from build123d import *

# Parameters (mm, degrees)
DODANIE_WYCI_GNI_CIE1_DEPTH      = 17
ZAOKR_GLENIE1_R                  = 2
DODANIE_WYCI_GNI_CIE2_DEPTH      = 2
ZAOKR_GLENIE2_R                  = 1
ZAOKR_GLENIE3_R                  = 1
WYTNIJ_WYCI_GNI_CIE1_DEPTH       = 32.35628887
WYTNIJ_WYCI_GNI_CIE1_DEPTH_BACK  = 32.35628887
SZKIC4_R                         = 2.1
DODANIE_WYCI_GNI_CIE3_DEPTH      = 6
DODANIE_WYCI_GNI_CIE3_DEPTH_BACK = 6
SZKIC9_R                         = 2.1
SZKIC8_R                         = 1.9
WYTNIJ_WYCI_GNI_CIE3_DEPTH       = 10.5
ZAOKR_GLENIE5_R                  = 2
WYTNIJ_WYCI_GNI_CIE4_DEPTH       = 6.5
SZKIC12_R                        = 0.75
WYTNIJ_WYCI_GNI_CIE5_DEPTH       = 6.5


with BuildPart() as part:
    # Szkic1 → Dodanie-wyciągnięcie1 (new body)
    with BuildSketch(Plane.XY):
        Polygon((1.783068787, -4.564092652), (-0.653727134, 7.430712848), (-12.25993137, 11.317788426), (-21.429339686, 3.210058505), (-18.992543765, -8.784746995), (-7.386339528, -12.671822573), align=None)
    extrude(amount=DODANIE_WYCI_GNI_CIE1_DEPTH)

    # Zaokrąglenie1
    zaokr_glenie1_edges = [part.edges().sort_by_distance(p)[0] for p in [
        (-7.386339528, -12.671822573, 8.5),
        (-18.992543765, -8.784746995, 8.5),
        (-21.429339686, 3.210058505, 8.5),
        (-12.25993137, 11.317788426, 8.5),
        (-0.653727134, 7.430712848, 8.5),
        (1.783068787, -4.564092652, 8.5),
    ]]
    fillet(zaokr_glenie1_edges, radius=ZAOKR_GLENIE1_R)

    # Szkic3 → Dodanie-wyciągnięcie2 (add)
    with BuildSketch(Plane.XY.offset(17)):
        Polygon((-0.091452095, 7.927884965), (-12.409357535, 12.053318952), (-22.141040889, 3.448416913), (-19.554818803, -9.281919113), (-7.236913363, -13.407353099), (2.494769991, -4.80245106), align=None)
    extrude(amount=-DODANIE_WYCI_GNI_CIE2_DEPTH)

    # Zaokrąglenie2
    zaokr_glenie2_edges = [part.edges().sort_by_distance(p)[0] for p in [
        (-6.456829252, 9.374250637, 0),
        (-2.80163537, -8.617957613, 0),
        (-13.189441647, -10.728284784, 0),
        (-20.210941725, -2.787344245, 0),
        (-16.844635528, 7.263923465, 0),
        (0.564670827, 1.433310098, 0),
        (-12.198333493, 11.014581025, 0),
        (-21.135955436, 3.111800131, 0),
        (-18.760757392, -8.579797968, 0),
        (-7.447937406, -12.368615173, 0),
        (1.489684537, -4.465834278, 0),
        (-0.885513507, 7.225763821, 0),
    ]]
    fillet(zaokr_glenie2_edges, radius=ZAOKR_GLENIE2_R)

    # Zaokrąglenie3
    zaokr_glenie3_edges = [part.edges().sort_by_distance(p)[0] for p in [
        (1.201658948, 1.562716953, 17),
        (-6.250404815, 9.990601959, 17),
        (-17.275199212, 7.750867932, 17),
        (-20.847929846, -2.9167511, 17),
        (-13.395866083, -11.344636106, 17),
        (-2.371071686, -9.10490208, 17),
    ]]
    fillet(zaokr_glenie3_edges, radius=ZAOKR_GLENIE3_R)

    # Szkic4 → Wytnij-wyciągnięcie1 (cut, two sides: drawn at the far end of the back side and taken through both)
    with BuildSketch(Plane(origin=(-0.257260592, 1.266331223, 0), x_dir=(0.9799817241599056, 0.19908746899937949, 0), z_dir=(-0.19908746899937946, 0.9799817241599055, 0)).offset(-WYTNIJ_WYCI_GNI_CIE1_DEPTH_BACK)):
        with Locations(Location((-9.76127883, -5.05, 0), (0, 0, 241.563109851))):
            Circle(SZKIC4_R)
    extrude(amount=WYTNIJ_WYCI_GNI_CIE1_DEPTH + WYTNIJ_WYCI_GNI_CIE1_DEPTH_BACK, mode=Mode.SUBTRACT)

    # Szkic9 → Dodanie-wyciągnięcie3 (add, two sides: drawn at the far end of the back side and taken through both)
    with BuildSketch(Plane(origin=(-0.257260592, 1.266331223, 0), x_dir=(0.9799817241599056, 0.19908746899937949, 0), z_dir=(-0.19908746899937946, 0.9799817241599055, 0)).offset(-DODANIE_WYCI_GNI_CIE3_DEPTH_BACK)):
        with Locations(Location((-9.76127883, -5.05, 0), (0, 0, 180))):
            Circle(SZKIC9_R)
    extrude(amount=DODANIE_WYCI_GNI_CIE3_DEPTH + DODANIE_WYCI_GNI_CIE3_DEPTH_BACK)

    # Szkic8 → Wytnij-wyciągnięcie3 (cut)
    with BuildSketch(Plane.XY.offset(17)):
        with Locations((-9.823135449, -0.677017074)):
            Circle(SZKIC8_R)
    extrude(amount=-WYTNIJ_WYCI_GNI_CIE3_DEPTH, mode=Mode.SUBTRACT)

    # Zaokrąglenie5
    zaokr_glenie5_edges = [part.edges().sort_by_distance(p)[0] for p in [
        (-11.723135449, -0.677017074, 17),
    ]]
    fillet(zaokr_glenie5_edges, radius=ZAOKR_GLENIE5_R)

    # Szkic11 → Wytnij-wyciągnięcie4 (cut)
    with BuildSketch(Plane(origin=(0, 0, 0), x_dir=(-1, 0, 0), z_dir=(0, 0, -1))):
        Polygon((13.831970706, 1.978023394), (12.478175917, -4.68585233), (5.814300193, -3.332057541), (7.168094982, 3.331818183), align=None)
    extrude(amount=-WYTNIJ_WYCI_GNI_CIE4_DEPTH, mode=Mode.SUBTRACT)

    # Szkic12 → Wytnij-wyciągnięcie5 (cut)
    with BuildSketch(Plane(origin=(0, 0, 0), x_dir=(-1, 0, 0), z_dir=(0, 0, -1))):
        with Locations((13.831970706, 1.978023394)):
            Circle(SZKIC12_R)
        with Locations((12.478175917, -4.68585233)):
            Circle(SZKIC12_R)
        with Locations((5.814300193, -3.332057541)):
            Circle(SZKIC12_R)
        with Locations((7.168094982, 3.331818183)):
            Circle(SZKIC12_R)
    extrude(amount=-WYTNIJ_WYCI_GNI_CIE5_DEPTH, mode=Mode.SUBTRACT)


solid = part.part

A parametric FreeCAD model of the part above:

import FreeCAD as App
import Part
import Sketcher

V = App.Vector


def edges_at(feature, points):
    """Names of the edges that pass closest to the given points."""
    edges = feature.Shape.Edges
    near = lambda p: min(range(len(edges)), key=lambda i: edges[i].distToShape(Part.Vertex(*p))[0])
    return sorted({f"Edge{near(p) + 1}" for p in points})

doc = App.newDocument("Part")
body = doc.addObject("PartDesign::Body", "Body")

sketch1 = doc.addObject("Sketcher::SketchObject", "Sketch")
body.addObject(sketch1)
sketch1.AttachmentSupport = (doc.XY_Plane, [""])
sketch1.MapMode = "FlatFace"
sketch1.addGeometry(Part.LineSegment(V(2, -5, 0), V(-1, 7, 0)), False)
sketch1.addGeometry(Part.LineSegment(V(-1, 7, 0), V(-12, 11, 0)), False)
sketch1.addGeometry(Part.LineSegment(V(-12, 11, 0), V(-21, 3, 0)), False)
sketch1.addGeometry(Part.LineSegment(V(-21, 3, 0), V(-19, -9, 0)), False)
sketch1.addGeometry(Part.LineSegment(V(-19, -9, 0), V(-7, -13, 0)), False)
sketch1.addGeometry(Part.LineSegment(V(-7, -13, 0), V(2, -5, 0)), False)
sketch1.addConstraint(Sketcher.Constraint("Coincident", 0, 2, 1, 1))
sketch1.addConstraint(Sketcher.Constraint("Coincident", 1, 2, 2, 1))
sketch1.addConstraint(Sketcher.Constraint("Coincident", 2, 2, 3, 1))
sketch1.addConstraint(Sketcher.Constraint("Coincident", 3, 2, 4, 1))
sketch1.addConstraint(Sketcher.Constraint("Coincident", 4, 2, 5, 1))
sketch1.addConstraint(Sketcher.Constraint("Coincident", 5, 2, 0, 1))
sketch1.addConstraint(Sketcher.Constraint("Parallel", 0, 3))
sketch1.addConstraint(Sketcher.Constraint("Parallel", 1, 4))
sketch1.addConstraint(Sketcher.Constraint("Parallel", 2, 5))
sketch1.addConstraint(Sketcher.Constraint("Equal", 0, 1))
sketch1.addConstraint(Sketcher.Constraint("Equal", 1, 2))
sketch1.addConstraint(Sketcher.Constraint("Equal", 2, 3))
sketch1.addConstraint(Sketcher.Constraint("DistanceX", 2, 2, 4, 2, 14.043))
sketch1.addConstraint(Sketcher.Constraint("DistanceX", 1, 2, -1, 1, 12.259931))
sketch1.addConstraint(Sketcher.Constraint("DistanceY", -1, 1, 1, 2, 11.317788))
sketch1.addConstraint(Sketcher.Constraint("DistanceX", 2, 2, -1, 1, 21.42934))
sketch1.addConstraint(Sketcher.Constraint("DistanceY", -1, 1, 2, 2, 3.210059))
sketch1.addConstraint(Sketcher.Constraint("DistanceY", 3, 2, 0, 2, 16.21546))
pad1 = doc.addObject("PartDesign::Pad", "Pad")
body.addObject(pad1)
pad1.Profile = sketch1
pad1.Length = 17
doc.recompute()

fillet = doc.addObject("PartDesign::Fillet", "Fillet")
body.addObject(fillet)
fillet.Base = (pad1, edges_at(pad1, [
    (-7.386, -12.672, 8.5),
    (-18.993, -8.785, 8.5),
    (-21.429, 3.21, 8.5),
    (-12.26, 11.318, 8.5),
    (-0.654, 7.431, 8.5),
    (1.783, -4.564, 8.5),
]))
fillet.Radius = 2

sketch2 = doc.addObject("Sketcher::SketchObject", "Sketch001")
body.addObject(sketch2)
sketch2.AttachmentSupport = (doc.XY_Plane, [""])
sketch2.MapMode = "FlatFace"
sketch2.AttachmentOffset = App.Placement(V(0, 0, 17), App.Rotation())
sketch2.addGeometry(Part.LineSegment(V(0, 8, 0), V(-12, 12, 0)), False)
sketch2.addGeometry(Part.LineSegment(V(-12, 12, 0), V(-22, 3, 0)), False)
sketch2.addGeometry(Part.LineSegment(V(-22, 3, 0), V(-20, -9, 0)), False)
sketch2.addGeometry(Part.LineSegment(V(-20, -9, 0), V(-7, -13, 0)), False)
sketch2.addGeometry(Part.LineSegment(V(-7, -13, 0), V(2, -5, 0)), False)
sketch2.addGeometry(Part.LineSegment(V(2, -5, 0), V(0, 8, 0)), False)
sketch2.addConstraint(Sketcher.Constraint("Coincident", 0, 2, 1, 1))
sketch2.addConstraint(Sketcher.Constraint("Coincident", 1, 2, 2, 1))
sketch2.addConstraint(Sketcher.Constraint("Coincident", 2, 2, 3, 1))
sketch2.addConstraint(Sketcher.Constraint("Coincident", 3, 2, 4, 1))
sketch2.addConstraint(Sketcher.Constraint("Coincident", 4, 2, 5, 1))
sketch2.addConstraint(Sketcher.Constraint("Coincident", 5, 2, 0, 1))
sketch2.addConstraint(Sketcher.Constraint("Parallel", 0, 3))
sketch2.addConstraint(Sketcher.Constraint("Parallel", 1, 4))
sketch2.addConstraint(Sketcher.Constraint("Parallel", 2, 5))
sketch2.addConstraint(Sketcher.Constraint("Equal", 0, 1))
sketch2.addConstraint(Sketcher.Constraint("Equal", 1, 2))
sketch2.addConstraint(Sketcher.Constraint("Equal", 2, 3))
sketch2.addConstraint(Sketcher.Constraint("Distance", 0, 12.990381))
sketch2.addConstraint(Sketcher.Constraint("DistanceY", -1, 1, 0, 2, 12.053319))
sketch2.addConstraint(Sketcher.Constraint("DistanceX", 1, 2, -1, 1, 22.141041))
sketch2.addConstraint(Sketcher.Constraint("DistanceX", 2, 2, -1, 1, 19.554819))
sketch2.addConstraint(Sketcher.Constraint("DistanceY", 2, 2, -1, 1, 9.281919))
sketch2.addConstraint(Sketcher.Constraint("DistanceX", -1, 1, 4, 2, 2.49477))
pad2 = doc.addObject("PartDesign::Pad", "Pad001")
body.addObject(pad2)
pad2.Profile = sketch2
pad2.Length = 2
pad2.Reversed = True
doc.recompute()

fillet2 = doc.addObject("PartDesign::Fillet", "Fillet001")
body.addObject(fillet2)
fillet2.Base = (pad2, edges_at(pad2, [
    (-6.457, 9.374, 0),
    (-2.802, -8.618, 0),
    (-13.189, -10.728, 0),
    (-20.211, -2.787, 0),
    (-16.845, 7.264, 0),
    (0.565, 1.433, 0),
    (-12.198, 11.015, 0),
    (-21.136, 3.112, 0),
    (-18.761, -8.58, 0),
    (-7.448, -12.369, 0),
    (1.49, -4.466, 0),
    (-0.886, 7.226, 0),
]))
fillet2.Radius = 1
doc.recompute()

fillet3 = doc.addObject("PartDesign::Fillet", "Fillet002")
body.addObject(fillet3)
fillet3.Base = (fillet2, edges_at(fillet2, [
    (1.202, 1.563, 17),
    (-6.25, 9.991, 17),
    (-17.275, 7.751, 17),
    (-20.848, -2.917, 17),
    (-13.396, -11.345, 17),
    (-2.371, -9.105, 17),
]))
fillet3.Radius = 1

sketch3 = doc.addObject("Sketcher::SketchObject", "Sketch002")
body.addObject(sketch3)
sketch3.Placement = App.Placement(V(-0.257261, 1.266331, 0), App.Rotation(V(0.979981724, 0.199087469, 0), V(0, 0, -1), V(-0.199087469, 0.979981724, 0), "ZXY"))
sketch3.addGeometry(Part.Circle(V(-9.8, -5, 0), V(0, 0, 1), 2.1), False)
sketch3.addConstraint(Sketcher.Constraint("Diameter", 0, 4.2))
sketch3.addConstraint(Sketcher.Constraint("DistanceY", 0, 3, -1, 1, 5.05))
sketch3.addConstraint(Sketcher.Constraint("DistanceX", 0, 3, -1, 1, 9.761279))
pocket1 = doc.addObject("PartDesign::Pocket", "Pocket")
body.addObject(pocket1)
pocket1.Profile = sketch3
pocket1.Type = "ThroughAll"
pocket1.Midplane = True

sketch4 = doc.addObject("Sketcher::SketchObject", "Sketch003")
body.addObject(sketch4)
sketch4.Placement = App.Placement(V(-0.257261, 1.266331, 0), App.Rotation(V(0.979981724, 0.199087469, 0), V(0, 0, -1), V(-0.199087469, 0.979981724, 0), "ZXY"))
sketch4.addGeometry(Part.Circle(V(-9.8, -5, 0), V(0, 0, 1), 2.1), False)
sketch4.addConstraint(Sketcher.Constraint("Diameter", 0, 4.2))
sketch4.addConstraint(Sketcher.Constraint("DistanceY", 0, 3, -1, 1, 5.05))
sketch4.addConstraint(Sketcher.Constraint("DistanceX", 0, 3, -1, 1, 9.761279))
pad3 = doc.addObject("PartDesign::Pad", "Pad002")
body.addObject(pad3)
pad3.Profile = sketch4
pad3.Type = "TwoLengths"
pad3.Length = 6
pad3.Length2 = 6

sketch5 = doc.addObject("Sketcher::SketchObject", "Sketch004")
body.addObject(sketch5)
sketch5.AttachmentSupport = (doc.XY_Plane, [""])
sketch5.MapMode = "FlatFace"
sketch5.AttachmentOffset = App.Placement(V(0, 0, 17), App.Rotation())
sketch5.addGeometry(Part.Circle(V(-9.8, -0.7, 0), V(0, 0, 1), 1.9), False)
sketch5.addConstraint(Sketcher.Constraint("Diameter", 0, 3.8))
sketch5.addConstraint(Sketcher.Constraint("DistanceX", 0, 3, -1, 1, 9.823135))
sketch5.addConstraint(Sketcher.Constraint("DistanceY", 0, 3, -1, 1, 0.677017))
pocket2 = doc.addObject("PartDesign::Pocket", "Pocket001")
body.addObject(pocket2)
pocket2.Profile = sketch5
pocket2.Length = 10.5
doc.recompute()

fillet4 = doc.addObject("PartDesign::Fillet", "Fillet003")
body.addObject(fillet4)
fillet4.Base = (pocket2, edges_at(pocket2, [(-11.723, -0.677, 17)]))
fillet4.Radius = 2

sketch6 = doc.addObject("Sketcher::SketchObject", "Sketch005")
body.addObject(sketch6)
sketch6.AttachmentSupport = (doc.XY_Plane, [""])
sketch6.MapMode = "FlatFace"
sketch6.addGeometry(Part.LineSegment(V(-12, -5, 0), V(-14, 2, 0)), False)
sketch6.addGeometry(Part.LineSegment(V(-14, 2, 0), V(-7, 3, 0)), False)
sketch6.addGeometry(Part.LineSegment(V(-7, 3, 0), V(-6, -3, 0)), False)
sketch6.addGeometry(Part.LineSegment(V(-6, -3, 0), V(-12, -5, 0)), False)
sketch6.addConstraint(Sketcher.Constraint("Coincident", 0, 2, 1, 1))
sketch6.addConstraint(Sketcher.Constraint("Coincident", 1, 2, 2, 1))
sketch6.addConstraint(Sketcher.Constraint("Coincident", 2, 2, 3, 1))
sketch6.addConstraint(Sketcher.Constraint("Coincident", 3, 2, 0, 1))
sketch6.addConstraint(Sketcher.Constraint("Perpendicular", 0, 1))
sketch6.addConstraint(Sketcher.Constraint("Perpendicular", 1, 2))
sketch6.addConstraint(Sketcher.Constraint("Perpendicular", 2, 3))
sketch6.addConstraint(Sketcher.Constraint("Equal", 0, 1))
sketch6.addConstraint(Sketcher.Constraint("Distance", 0, 6.8))
sketch6.addConstraint(Sketcher.Constraint("DistanceX", 2, 2, -1, 1, 5.8143))
sketch6.addConstraint(Sketcher.Constraint("DistanceX", 0, 2, -1, 1, 13.831971))
sketch6.addConstraint(Sketcher.Constraint("DistanceY", -1, 1, 1, 2, 3.331818))
pocket3 = doc.addObject("PartDesign::Pocket", "Pocket002")
body.addObject(pocket3)
pocket3.Profile = sketch6
pocket3.Length = 6.5
pocket3.Reversed = True

sketch7 = doc.addObject("Sketcher::SketchObject", "Sketch006")
body.addObject(sketch7)
sketch7.AttachmentSupport = (doc.XY_Plane, [""])
sketch7.MapMode = "FlatFace"
sketch7.addGeometry(Part.Circle(V(-13.8, 2, 0), V(0, 0, 1), 0.8), False)
sketch7.addGeometry(Part.Circle(V(-12.5, -4.7, 0), V(0, 0, 1), 0.8), False)
sketch7.addGeometry(Part.Circle(V(-5.8, -3.3, 0), V(0, 0, 1), 0.8), False)
sketch7.addGeometry(Part.Circle(V(-7.2, 3.3, 0), V(0, 0, 1), 0.8), False)
sketch7.addConstraint(Sketcher.Constraint("Equal", 0, 1))
sketch7.addConstraint(Sketcher.Constraint("Equal", 1, 2))
sketch7.addConstraint(Sketcher.Constraint("Equal", 2, 3))
sketch7.addConstraint(Sketcher.Constraint("Diameter", 0, 1.5))
sketch7.addConstraint(Sketcher.Constraint("DistanceX", 2, 3, -1, 1, 5.8143))
sketch7.addConstraint(Sketcher.Constraint("DistanceX", 0, 3, -1, 1, 13.831971))
sketch7.addConstraint(Sketcher.Constraint("DistanceY", -1, 1, 3, 3, 3.331818))
sketch7.addConstraint(Sketcher.Constraint("DistanceY", 2, 3, 0, 3, 5.310081))
sketch7.addConstraint(Sketcher.Constraint("DistanceX", 1, 3, 3, 3, 5.310081))
sketch7.addConstraint(Sketcher.Constraint("DistanceY", 1, 3, 3, 3, 8.017671))
sketch7.addConstraint(Sketcher.Constraint("DistanceY", -1, 1, 0, 3, 1.978023))
sketch7.addConstraint(Sketcher.Constraint("DistanceX", 1, 3, -1, 1, 12.478176))
pocket4 = doc.addObject("PartDesign::Pocket", "Pocket003")
body.addObject(pocket4)
pocket4.Profile = sketch7
pocket4.Length = 6.5
pocket4.Reversed = True

doc.recompute()
